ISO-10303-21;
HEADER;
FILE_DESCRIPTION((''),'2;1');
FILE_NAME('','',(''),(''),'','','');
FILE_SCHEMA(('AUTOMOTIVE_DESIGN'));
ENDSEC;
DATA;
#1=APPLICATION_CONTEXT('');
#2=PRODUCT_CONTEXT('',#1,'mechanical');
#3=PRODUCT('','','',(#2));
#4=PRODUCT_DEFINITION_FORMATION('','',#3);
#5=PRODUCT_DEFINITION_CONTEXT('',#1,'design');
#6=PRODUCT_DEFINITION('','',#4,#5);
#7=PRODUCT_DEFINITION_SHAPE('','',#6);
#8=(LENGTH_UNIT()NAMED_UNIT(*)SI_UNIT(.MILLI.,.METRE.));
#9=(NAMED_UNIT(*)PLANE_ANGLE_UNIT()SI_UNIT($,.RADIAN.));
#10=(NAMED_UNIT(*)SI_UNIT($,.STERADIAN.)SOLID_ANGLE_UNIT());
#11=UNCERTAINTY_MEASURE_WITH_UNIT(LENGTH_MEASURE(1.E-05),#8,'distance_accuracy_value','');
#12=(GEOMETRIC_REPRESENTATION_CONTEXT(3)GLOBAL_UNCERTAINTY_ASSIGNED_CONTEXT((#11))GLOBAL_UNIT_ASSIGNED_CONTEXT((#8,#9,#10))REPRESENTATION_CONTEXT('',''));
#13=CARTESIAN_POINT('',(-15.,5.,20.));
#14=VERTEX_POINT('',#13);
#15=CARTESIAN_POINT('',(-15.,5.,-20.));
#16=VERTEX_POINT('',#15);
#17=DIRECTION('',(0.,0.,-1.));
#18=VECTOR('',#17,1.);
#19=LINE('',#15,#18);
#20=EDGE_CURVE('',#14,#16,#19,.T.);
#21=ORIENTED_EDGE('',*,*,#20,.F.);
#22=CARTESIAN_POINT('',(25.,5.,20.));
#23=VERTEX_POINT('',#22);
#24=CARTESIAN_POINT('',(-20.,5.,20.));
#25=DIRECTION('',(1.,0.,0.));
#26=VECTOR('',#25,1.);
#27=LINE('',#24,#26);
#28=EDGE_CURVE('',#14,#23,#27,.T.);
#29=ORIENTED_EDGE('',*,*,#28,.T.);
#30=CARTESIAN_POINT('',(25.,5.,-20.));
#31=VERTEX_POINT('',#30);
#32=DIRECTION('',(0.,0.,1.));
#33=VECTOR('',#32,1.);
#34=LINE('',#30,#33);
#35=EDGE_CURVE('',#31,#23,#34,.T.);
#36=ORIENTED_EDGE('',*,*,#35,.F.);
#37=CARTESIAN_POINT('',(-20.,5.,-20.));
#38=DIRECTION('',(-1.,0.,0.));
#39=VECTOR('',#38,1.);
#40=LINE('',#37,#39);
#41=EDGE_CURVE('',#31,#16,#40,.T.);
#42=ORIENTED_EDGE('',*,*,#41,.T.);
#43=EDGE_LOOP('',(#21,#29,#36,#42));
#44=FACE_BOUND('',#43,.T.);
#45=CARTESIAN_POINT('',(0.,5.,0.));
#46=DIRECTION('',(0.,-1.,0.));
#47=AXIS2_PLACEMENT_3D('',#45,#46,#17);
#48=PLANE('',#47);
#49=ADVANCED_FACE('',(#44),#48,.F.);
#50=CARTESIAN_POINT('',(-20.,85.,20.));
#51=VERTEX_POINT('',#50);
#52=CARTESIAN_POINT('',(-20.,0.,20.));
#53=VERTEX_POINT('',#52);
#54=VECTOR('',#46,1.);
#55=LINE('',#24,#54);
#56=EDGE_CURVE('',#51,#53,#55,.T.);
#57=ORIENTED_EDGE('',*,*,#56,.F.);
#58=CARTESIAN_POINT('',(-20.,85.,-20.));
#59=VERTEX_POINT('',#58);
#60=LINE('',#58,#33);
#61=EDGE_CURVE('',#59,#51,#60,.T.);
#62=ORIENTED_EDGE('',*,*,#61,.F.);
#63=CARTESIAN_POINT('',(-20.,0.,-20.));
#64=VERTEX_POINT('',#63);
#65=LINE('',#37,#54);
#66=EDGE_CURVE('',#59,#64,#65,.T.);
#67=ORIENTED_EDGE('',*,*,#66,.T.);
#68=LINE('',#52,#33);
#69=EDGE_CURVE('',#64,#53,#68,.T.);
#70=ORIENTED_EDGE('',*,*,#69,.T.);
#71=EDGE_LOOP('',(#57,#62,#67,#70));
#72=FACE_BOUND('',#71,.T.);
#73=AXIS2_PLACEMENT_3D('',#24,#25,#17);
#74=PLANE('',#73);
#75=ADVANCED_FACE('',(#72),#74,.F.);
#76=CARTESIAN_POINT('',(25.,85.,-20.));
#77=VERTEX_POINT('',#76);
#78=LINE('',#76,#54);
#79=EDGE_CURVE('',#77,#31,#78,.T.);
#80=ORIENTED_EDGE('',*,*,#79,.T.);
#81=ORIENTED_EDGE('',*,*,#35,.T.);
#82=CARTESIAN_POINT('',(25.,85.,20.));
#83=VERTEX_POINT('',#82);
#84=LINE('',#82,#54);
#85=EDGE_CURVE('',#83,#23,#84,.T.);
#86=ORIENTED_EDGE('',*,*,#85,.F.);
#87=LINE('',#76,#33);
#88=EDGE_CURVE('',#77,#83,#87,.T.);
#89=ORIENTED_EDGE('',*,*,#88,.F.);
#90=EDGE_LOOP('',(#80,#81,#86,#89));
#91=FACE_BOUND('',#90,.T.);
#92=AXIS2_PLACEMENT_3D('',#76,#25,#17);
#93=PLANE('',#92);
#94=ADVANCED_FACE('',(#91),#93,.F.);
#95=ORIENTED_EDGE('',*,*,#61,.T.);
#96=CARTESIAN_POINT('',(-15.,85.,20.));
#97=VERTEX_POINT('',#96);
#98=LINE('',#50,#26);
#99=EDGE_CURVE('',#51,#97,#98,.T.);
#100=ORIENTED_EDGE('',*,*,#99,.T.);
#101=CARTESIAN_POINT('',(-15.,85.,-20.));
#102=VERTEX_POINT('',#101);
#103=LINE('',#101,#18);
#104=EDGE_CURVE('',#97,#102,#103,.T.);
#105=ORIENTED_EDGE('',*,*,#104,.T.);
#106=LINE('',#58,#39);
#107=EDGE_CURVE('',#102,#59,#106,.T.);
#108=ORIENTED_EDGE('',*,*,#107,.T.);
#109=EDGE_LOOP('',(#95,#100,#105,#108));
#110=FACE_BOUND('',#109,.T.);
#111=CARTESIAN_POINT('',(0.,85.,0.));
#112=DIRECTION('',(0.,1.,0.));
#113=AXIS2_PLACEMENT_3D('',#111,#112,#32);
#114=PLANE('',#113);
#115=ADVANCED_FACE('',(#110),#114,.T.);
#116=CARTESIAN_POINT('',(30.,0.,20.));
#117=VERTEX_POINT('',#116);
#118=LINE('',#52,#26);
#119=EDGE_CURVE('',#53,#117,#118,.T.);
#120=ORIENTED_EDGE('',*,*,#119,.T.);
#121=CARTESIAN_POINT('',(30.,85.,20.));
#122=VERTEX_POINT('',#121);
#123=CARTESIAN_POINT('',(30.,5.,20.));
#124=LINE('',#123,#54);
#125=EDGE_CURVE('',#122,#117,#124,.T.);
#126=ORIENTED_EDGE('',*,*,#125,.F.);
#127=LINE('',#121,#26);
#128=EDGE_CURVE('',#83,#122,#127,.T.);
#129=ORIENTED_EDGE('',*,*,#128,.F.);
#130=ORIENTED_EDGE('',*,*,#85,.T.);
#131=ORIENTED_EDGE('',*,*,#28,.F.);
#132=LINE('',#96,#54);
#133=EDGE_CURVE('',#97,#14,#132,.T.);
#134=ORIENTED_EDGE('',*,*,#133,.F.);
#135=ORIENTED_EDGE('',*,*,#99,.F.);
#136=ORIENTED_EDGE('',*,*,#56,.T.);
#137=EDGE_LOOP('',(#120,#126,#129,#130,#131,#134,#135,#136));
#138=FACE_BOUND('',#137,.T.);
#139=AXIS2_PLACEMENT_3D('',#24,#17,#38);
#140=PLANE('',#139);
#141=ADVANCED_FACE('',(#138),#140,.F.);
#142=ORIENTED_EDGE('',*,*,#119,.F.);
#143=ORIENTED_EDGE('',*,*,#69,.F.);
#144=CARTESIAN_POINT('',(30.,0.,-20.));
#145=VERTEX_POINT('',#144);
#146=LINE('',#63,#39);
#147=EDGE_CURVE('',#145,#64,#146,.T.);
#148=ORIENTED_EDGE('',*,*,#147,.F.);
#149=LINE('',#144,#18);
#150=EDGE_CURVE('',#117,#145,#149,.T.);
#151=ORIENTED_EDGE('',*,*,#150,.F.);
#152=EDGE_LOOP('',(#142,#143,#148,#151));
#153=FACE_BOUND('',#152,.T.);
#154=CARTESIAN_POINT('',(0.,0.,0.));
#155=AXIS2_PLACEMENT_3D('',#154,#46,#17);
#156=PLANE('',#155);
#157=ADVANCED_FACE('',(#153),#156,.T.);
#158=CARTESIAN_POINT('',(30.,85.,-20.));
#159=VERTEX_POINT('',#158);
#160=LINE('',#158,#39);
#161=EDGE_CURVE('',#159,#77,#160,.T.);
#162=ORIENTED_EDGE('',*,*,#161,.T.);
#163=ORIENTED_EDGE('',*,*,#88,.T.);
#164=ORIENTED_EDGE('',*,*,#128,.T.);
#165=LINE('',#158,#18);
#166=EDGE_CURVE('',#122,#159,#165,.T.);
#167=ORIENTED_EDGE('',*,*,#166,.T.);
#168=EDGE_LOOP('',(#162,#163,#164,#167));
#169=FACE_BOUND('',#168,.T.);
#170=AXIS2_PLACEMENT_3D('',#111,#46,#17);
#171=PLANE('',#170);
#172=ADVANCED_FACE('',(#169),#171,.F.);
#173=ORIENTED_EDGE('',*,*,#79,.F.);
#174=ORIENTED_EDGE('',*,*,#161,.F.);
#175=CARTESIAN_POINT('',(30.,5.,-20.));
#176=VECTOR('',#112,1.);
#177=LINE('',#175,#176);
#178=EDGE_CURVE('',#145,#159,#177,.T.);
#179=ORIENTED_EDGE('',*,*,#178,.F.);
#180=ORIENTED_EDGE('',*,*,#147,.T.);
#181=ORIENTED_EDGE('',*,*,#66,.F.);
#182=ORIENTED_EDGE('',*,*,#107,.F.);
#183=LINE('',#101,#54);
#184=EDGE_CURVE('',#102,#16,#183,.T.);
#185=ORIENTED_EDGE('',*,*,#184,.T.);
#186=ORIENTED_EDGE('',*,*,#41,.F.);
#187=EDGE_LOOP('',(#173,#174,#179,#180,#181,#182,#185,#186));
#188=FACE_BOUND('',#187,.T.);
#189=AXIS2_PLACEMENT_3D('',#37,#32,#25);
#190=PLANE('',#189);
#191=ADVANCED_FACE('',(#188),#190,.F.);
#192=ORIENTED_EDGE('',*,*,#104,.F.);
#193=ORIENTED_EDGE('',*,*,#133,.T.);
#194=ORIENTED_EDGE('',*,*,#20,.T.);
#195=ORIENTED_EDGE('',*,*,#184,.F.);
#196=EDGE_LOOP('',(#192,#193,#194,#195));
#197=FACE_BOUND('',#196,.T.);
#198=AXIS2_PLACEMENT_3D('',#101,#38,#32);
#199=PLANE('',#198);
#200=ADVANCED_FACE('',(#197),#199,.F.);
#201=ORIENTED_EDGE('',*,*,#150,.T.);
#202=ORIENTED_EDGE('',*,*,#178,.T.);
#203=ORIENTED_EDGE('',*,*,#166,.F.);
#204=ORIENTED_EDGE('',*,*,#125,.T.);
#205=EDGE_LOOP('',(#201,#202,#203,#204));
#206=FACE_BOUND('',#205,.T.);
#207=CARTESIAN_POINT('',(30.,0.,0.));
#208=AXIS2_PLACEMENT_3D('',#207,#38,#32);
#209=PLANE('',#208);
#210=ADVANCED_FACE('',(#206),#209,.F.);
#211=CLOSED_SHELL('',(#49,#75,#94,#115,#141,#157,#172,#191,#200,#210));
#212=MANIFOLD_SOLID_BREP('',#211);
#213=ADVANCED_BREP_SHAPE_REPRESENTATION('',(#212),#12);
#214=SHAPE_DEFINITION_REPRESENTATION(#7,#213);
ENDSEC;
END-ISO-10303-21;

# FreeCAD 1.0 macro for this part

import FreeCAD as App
import Part
import Sketcher


def add_polygon(sketch, points):
    """Adds a closed chain of lines whose ends are joined by coincident constraints."""
    first, n = sketch.GeometryCount, len(points)
    for a, b in zip(points, points[1:] + points[:1]):
        sketch.addGeometry(Part.LineSegment(App.Vector(*a, 0), App.Vector(*b, 0)), False)
    for i in range(n):
        sketch.addConstraint(Sketcher.Constraint("Coincident", first + i, 2, first + (i + 1) % n, 1))

doc = App.newDocument("Part")
body = doc.addObject("PartDesign::Body", "Body")

sketch1 = body.newObject("Sketcher::SketchObject", "Sketch")
sketch1.AttachmentSupport = (doc.getObject("XZ_Plane"), [""])
sketch1.MapMode = "FlatFace"
add_polygon(sketch1, [(-20, -20), (-20, 20), (20, 20), (20, -20)])
sketch1.addConstraint([
    Sketcher.Constraint("Vertical", 0),
    Sketcher.Constraint("Horizontal", 1),
    Sketcher.Constraint("Vertical", 2),
    Sketcher.Constraint("Horizontal", 3),
    Sketcher.Constraint("Symmetric", 0, 2, 2, 2, -1, 1),
    Sketcher.Constraint("Equal", 3, 0),
    Sketcher.Constraint("DistanceX", 1, 1, 1, 2, 40.0),
])
pad1 = body.newObject("PartDesign::Pad", "Pad")
pad1.Profile = sketch1
pad1.Length = 5
pad1.Reversed = True

sketch2 = body.newObject("Sketcher::SketchObject", "Sketch001")
sketch2.AttachmentSupport = (doc.getObject("YZ_Plane"), [""])
sketch2.MapMode = "FlatFace"
sketch2.AttachmentOffset = App.Placement(App.Vector(0, 0, 20), App.Rotation())
add_polygon(sketch2, [(5, 20), (0, 20), (0, -20), (5, -20)])
sketch2.addConstraint([
    Sketcher.Constraint("Horizontal", 0),
    Sketcher.Constraint("Vertical", 1),
    Sketcher.Constraint("Horizontal", 2),
    Sketcher.Constraint("Vertical", 3),
    Sketcher.Constraint("Symmetric", 0, 2, 1, 2, -1, 1),
    Sketcher.Constraint("DistanceX", 0, 2, 0, 1, 5.0),
    Sketcher.Constraint("DistanceY", 1, 2, 1, 1, 40.0),
])
pad2 = body.newObject("PartDesign::Pad", "Pad001")
pad2.Profile = sketch2
pad2.Length = 10

sketch3 = body.newObject("Sketcher::SketchObject", "Sketch002")
sketch3.AttachmentSupport = (doc.getObject("XZ_Plane"), [""])
sketch3.MapMode = "FlatFace"
sketch3.AttachmentOffset = App.Placement(App.Vector(0, 0, -5), App.Rotation())
add_polygon(sketch3, [(-20, -20), (-20, 20), (-15, 20), (-15, -20)])
add_polygon(sketch3, [(25, -20), (25, 20), (30, 20), (30, -20)])
sketch3.addConstraint([
    Sketcher.Constraint("Vertical", 0),
    Sketcher.Constraint("Horizontal", 1),
    Sketcher.Constraint("Vertical", 2),
    Sketcher.Constraint("Horizontal", 3),
    Sketcher.Constraint("Vertical", 4),
    Sketcher.Constraint("Horizontal", 5),
    Sketcher.Constraint("Vertical", 6),
    Sketcher.Constraint("Horizontal", 7),
    Sketcher.Constraint("Horizontal", 1, 2, 4, 2),
    Sketcher.Constraint("Horizontal", 3, 2, 6, 2),
    Sketcher.Constraint("Equal", 3, 5),
    Sketcher.Constraint("DistanceX", 1, 1, 1, 2, 5.0),
    Sketcher.Constraint("DistanceY", 0, 1, 0, 2, 40.0),
    Sketcher.Constraint("DistanceX", 0, 2, -1, 1, 20.0),
    Sketcher.Constraint("DistanceY", -1, 1, 0, 2, 20.0),
    Sketcher.Constraint("DistanceX", -1, 1, 4, 2, 25.0),
])
pad3 = body.newObject("PartDesign::Pad", "Pad002")
pad3.Profile = sketch3
pad3.Length = 80
pad3.Reversed = True

doc.recompute()
